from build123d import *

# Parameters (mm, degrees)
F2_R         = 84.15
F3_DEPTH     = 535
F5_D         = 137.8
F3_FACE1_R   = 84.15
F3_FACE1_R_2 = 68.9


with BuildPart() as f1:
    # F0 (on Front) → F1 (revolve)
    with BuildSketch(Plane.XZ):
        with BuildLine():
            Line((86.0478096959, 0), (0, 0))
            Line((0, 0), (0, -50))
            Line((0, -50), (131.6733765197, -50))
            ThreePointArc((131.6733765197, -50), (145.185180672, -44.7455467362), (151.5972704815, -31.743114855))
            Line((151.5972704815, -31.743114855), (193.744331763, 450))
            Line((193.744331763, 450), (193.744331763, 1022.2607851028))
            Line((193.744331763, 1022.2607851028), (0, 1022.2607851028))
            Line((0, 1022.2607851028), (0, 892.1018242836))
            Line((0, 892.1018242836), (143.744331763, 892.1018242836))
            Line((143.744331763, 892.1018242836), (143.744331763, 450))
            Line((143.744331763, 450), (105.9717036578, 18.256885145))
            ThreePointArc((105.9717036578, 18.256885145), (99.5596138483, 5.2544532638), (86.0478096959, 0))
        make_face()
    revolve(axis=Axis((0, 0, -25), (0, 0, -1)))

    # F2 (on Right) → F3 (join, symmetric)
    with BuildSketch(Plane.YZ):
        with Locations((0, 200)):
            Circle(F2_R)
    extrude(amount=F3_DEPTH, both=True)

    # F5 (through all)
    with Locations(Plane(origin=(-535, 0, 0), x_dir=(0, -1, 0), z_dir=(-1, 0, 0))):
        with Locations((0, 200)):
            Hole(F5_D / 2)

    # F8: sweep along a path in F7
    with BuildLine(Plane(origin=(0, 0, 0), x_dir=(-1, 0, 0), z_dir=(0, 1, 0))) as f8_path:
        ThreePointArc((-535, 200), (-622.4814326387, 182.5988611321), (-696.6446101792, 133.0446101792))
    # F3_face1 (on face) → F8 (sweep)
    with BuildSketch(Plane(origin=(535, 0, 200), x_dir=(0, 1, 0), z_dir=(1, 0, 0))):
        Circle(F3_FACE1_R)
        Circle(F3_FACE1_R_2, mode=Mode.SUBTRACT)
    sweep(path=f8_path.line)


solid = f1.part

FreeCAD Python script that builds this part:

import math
import FreeCAD as App
import Part
import Sketcher
from FreeCAD import Vector
Q = App.Units.Quantity

doc = App.newDocument("Part")
body = doc.addObject("PartDesign::Body", "Body")

# Sketch on XZ plane
sketch1 = body.newObject("Sketcher::SketchObject", "Sketch")
sketch1.AttachmentSupport = (doc.getObject("XZ_Plane"), [""])
sketch1.MapMode = "FlatFace"
sketch1.addGeometry([
    Part.LineSegment(Vector(86, 0, 0), Vector(0, 0, 0)),  # 0
    Part.LineSegment(Vector(0, 0, 0), Vector(0, -50, 0)),  # 1
    Part.LineSegment(Vector(0, -50, 0), Vector(132, -50, 0)),  # 2
    Part.ArcOfCircle(Part.Circle(Vector(132, -30, 0), Vector(0, 0, 1), 20), math.radians(-90), math.radians(-5)),  # 3
    Part.LineSegment(Vector(152, -32, 0), Vector(194, 450, 0)),  # 4
    Part.LineSegment(Vector(194, 450, 0), Vector(194, 1022, 0)),  # 5
    Part.LineSegment(Vector(194, 1022, 0), Vector(0, 1022, 0)),  # 6
    Part.LineSegment(Vector(0, 1022, 0), Vector(0, 892, 0)),  # 7
    Part.LineSegment(Vector(0, 892, 0), Vector(144, 892, 0)),  # 8
    Part.LineSegment(Vector(144, 892, 0), Vector(144, 450, 0)),  # 9
    Part.LineSegment(Vector(144, 450, 0), Vector(106, 18, 0)),  # 10
    Part.ArcOfCircle(Part.Circle(Vector(86, 20, 0), Vector(0, 0, 1), 20), math.radians(-90), math.radians(-5)),  # 11
], False)
sketch1.addConstraint([
    Sketcher.Constraint("Coincident", 0, 2, 1, 1),
    Sketcher.Constraint("Coincident", 1, 2, 2, 1),
    Sketcher.Constraint("Tangent", 2, 2, 3, 1),
    Sketcher.Constraint("Tangent", 3, 2, 4, 1),
    Sketcher.Constraint("Coincident", 4, 2, 5, 1),
    Sketcher.Constraint("Coincident", 5, 2, 6, 1),
    Sketcher.Constraint("Coincident", 6, 2, 7, 1),
    Sketcher.Constraint("Coincident", 7, 2, 8, 1),
    Sketcher.Constraint("Coincident", 8, 2, 9, 1),
    Sketcher.Constraint("Coincident", 9, 2, 10, 1),
    Sketcher.Constraint("Tangent", 10, 2, 11, 2),
    Sketcher.Constraint("Tangent", 11, 1, 0, 1),
    Sketcher.Constraint("Horizontal", 0),
    Sketcher.Constraint("Vertical", 1),
    Sketcher.Constraint("Horizontal", 2),
    Sketcher.Constraint("Vertical", 5),
    Sketcher.Constraint("Horizontal", 6),
    Sketcher.Constraint("Vertical", 7),
    Sketcher.Constraint("Horizontal", 8),
    Sketcher.Constraint("Vertical", 9),
    Sketcher.Constraint("Coincident", 0, 2, -1, 1),
    Sketcher.Constraint("Equal", 3, 11),
    Sketcher.Constraint("PointOnObject", 6, 2, -2),
    Sketcher.Constraint("Parallel", 4, 10),
    Sketcher.Constraint("Horizontal", 4, 2, 9, 2),
    Sketcher.Constraint("Radius", 3, 20.0),
    Sketcher.Constraint("DistanceY", 1, 2, 1, 1, 50.0),
    Sketcher.Constraint("Angle", 4, Q("85 deg")),
    Sketcher.Constraint("DistanceY", -1, 1, 4, 2, 450.0),
    Sketcher.Constraint("DistanceX", 8, 2, 5, 2, 50.0),
    Sketcher.Constraint("DistanceX", 0, 2, 0, 1, 86.04781),
    Sketcher.Constraint("DistanceY", 7, 2, 7, 1, 130.158961),
    Sketcher.Constraint("DistanceY", 3, 2, 5, 2, 1054.0039),
])
revolution = body.newObject("PartDesign::Revolution", "Revolution")
revolution.Profile = sketch1
revolution.ReferenceAxis = (sketch1, ["V_Axis"])
revolution.Angle = 360

# Sketch on YZ plane
sketch2 = body.newObject("Sketcher::SketchObject", "Sketch001")
sketch2.AttachmentSupport = (doc.getObject("YZ_Plane"), [""])
sketch2.MapMode = "FlatFace"
sketch2.addGeometry(Part.Circle(Vector(0, 200, 0), Vector(0, 0, 1), 84), False)
sketch2.addConstraint([
    Sketcher.Constraint("PointOnObject", 0, 3, -2),
    Sketcher.Constraint("Diameter", 0, 168.3),
    Sketcher.Constraint("DistanceY", -1, 1, 0, 3, 200.0),
])
pad1 = body.newObject("PartDesign::Pad", "Pad")
pad1.Profile = sketch2
pad1.Length = 1070
pad1.Midplane = True

# Sketch on YZ plane
sketch3 = body.newObject("Sketcher::SketchObject", "Sketch002")
sketch3.AttachmentSupport = (doc.getObject("YZ_Plane"), [""])
sketch3.MapMode = "FlatFace"
sketch3.AttachmentOffset = App.Placement(Vector(0, 0, -535), App.Rotation())
sketch3.addGeometry(Part.Circle(Vector(0, 200, 0), Vector(0, 0, 1), 69), False)
sketch3.addConstraint([
    Sketcher.Constraint("PointOnObject", 0, 3, -2),
    Sketcher.Constraint("Diameter", 0, 137.8),
    Sketcher.Constraint("DistanceY", -1, 1, 0, 3, 200.0),
])
doc.recompute()
hole = body.newObject("PartDesign::Hole", "Hole")
hole.Profile = sketch3
hole.ThreadType = "None"
hole.Diameter = 137.8
hole.DepthType = "ThroughAll"
hole.Reversed = True

# Sketch on YZ plane
sketch4 = body.newObject("Sketcher::SketchObject", "Sketch003")
sketch4.AttachmentSupport = (doc.getObject("YZ_Plane"), [""])
sketch4.MapMode = "FlatFace"
sketch4.AttachmentOffset = App.Placement(Vector(0, 0, 535), App.Rotation())
sketch4.addGeometry([
    Part.Circle(Vector(0, 200, 0), Vector(0, 0, 1), 84),
    Part.Circle(Vector(0, 200, 0), Vector(0, 0, 1), 69),
], False)
sketch4.addConstraint([
    Sketcher.Constraint("Coincident", 1, 3, 0, 3),
    Sketcher.Constraint("PointOnObject", 0, 3, -2),
    Sketcher.Constraint("Diameter", 0, 168.3),
    Sketcher.Constraint("Diameter", 1, 137.8),
    Sketcher.Constraint("DistanceY", -1, 1, 0, 3, 200.0),
])

# Sketch on XZ plane
sketch5 = body.newObject("Sketcher::SketchObject", "Sketch004")
sketch5.AttachmentSupport = (doc.getObject("XZ_Plane"), [""])
sketch5.MapMode = "FlatFace"
sketch5.addGeometry(Part.ArcOfCircle(Part.Circle(Vector(535, -29, 0), Vector(0, 0, 1), 229), math.radians(45), math.radians(90)), False)
sketch5.addConstraint([
    Sketcher.Constraint("Radius", 0, 228.6),
    Sketcher.Constraint("DistanceX", -1, 1, 0, 3, 535.0),
    Sketcher.Constraint("DistanceX", -1, 1, 0, 2, 535.0),
    Sketcher.Constraint("DistanceY", -1, 1, 0, 2, 200.0),
    Sketcher.Constraint("DistanceX", -1, 1, 0, 1, 696.64461),
])
doc.recompute()

additivepipe = body.newObject("PartDesign::AdditivePipe", "AdditivePipe")
additivepipe.Profile = sketch4
additivepipe.Spine = (sketch5, ["Edge1"])

doc.recompute()
